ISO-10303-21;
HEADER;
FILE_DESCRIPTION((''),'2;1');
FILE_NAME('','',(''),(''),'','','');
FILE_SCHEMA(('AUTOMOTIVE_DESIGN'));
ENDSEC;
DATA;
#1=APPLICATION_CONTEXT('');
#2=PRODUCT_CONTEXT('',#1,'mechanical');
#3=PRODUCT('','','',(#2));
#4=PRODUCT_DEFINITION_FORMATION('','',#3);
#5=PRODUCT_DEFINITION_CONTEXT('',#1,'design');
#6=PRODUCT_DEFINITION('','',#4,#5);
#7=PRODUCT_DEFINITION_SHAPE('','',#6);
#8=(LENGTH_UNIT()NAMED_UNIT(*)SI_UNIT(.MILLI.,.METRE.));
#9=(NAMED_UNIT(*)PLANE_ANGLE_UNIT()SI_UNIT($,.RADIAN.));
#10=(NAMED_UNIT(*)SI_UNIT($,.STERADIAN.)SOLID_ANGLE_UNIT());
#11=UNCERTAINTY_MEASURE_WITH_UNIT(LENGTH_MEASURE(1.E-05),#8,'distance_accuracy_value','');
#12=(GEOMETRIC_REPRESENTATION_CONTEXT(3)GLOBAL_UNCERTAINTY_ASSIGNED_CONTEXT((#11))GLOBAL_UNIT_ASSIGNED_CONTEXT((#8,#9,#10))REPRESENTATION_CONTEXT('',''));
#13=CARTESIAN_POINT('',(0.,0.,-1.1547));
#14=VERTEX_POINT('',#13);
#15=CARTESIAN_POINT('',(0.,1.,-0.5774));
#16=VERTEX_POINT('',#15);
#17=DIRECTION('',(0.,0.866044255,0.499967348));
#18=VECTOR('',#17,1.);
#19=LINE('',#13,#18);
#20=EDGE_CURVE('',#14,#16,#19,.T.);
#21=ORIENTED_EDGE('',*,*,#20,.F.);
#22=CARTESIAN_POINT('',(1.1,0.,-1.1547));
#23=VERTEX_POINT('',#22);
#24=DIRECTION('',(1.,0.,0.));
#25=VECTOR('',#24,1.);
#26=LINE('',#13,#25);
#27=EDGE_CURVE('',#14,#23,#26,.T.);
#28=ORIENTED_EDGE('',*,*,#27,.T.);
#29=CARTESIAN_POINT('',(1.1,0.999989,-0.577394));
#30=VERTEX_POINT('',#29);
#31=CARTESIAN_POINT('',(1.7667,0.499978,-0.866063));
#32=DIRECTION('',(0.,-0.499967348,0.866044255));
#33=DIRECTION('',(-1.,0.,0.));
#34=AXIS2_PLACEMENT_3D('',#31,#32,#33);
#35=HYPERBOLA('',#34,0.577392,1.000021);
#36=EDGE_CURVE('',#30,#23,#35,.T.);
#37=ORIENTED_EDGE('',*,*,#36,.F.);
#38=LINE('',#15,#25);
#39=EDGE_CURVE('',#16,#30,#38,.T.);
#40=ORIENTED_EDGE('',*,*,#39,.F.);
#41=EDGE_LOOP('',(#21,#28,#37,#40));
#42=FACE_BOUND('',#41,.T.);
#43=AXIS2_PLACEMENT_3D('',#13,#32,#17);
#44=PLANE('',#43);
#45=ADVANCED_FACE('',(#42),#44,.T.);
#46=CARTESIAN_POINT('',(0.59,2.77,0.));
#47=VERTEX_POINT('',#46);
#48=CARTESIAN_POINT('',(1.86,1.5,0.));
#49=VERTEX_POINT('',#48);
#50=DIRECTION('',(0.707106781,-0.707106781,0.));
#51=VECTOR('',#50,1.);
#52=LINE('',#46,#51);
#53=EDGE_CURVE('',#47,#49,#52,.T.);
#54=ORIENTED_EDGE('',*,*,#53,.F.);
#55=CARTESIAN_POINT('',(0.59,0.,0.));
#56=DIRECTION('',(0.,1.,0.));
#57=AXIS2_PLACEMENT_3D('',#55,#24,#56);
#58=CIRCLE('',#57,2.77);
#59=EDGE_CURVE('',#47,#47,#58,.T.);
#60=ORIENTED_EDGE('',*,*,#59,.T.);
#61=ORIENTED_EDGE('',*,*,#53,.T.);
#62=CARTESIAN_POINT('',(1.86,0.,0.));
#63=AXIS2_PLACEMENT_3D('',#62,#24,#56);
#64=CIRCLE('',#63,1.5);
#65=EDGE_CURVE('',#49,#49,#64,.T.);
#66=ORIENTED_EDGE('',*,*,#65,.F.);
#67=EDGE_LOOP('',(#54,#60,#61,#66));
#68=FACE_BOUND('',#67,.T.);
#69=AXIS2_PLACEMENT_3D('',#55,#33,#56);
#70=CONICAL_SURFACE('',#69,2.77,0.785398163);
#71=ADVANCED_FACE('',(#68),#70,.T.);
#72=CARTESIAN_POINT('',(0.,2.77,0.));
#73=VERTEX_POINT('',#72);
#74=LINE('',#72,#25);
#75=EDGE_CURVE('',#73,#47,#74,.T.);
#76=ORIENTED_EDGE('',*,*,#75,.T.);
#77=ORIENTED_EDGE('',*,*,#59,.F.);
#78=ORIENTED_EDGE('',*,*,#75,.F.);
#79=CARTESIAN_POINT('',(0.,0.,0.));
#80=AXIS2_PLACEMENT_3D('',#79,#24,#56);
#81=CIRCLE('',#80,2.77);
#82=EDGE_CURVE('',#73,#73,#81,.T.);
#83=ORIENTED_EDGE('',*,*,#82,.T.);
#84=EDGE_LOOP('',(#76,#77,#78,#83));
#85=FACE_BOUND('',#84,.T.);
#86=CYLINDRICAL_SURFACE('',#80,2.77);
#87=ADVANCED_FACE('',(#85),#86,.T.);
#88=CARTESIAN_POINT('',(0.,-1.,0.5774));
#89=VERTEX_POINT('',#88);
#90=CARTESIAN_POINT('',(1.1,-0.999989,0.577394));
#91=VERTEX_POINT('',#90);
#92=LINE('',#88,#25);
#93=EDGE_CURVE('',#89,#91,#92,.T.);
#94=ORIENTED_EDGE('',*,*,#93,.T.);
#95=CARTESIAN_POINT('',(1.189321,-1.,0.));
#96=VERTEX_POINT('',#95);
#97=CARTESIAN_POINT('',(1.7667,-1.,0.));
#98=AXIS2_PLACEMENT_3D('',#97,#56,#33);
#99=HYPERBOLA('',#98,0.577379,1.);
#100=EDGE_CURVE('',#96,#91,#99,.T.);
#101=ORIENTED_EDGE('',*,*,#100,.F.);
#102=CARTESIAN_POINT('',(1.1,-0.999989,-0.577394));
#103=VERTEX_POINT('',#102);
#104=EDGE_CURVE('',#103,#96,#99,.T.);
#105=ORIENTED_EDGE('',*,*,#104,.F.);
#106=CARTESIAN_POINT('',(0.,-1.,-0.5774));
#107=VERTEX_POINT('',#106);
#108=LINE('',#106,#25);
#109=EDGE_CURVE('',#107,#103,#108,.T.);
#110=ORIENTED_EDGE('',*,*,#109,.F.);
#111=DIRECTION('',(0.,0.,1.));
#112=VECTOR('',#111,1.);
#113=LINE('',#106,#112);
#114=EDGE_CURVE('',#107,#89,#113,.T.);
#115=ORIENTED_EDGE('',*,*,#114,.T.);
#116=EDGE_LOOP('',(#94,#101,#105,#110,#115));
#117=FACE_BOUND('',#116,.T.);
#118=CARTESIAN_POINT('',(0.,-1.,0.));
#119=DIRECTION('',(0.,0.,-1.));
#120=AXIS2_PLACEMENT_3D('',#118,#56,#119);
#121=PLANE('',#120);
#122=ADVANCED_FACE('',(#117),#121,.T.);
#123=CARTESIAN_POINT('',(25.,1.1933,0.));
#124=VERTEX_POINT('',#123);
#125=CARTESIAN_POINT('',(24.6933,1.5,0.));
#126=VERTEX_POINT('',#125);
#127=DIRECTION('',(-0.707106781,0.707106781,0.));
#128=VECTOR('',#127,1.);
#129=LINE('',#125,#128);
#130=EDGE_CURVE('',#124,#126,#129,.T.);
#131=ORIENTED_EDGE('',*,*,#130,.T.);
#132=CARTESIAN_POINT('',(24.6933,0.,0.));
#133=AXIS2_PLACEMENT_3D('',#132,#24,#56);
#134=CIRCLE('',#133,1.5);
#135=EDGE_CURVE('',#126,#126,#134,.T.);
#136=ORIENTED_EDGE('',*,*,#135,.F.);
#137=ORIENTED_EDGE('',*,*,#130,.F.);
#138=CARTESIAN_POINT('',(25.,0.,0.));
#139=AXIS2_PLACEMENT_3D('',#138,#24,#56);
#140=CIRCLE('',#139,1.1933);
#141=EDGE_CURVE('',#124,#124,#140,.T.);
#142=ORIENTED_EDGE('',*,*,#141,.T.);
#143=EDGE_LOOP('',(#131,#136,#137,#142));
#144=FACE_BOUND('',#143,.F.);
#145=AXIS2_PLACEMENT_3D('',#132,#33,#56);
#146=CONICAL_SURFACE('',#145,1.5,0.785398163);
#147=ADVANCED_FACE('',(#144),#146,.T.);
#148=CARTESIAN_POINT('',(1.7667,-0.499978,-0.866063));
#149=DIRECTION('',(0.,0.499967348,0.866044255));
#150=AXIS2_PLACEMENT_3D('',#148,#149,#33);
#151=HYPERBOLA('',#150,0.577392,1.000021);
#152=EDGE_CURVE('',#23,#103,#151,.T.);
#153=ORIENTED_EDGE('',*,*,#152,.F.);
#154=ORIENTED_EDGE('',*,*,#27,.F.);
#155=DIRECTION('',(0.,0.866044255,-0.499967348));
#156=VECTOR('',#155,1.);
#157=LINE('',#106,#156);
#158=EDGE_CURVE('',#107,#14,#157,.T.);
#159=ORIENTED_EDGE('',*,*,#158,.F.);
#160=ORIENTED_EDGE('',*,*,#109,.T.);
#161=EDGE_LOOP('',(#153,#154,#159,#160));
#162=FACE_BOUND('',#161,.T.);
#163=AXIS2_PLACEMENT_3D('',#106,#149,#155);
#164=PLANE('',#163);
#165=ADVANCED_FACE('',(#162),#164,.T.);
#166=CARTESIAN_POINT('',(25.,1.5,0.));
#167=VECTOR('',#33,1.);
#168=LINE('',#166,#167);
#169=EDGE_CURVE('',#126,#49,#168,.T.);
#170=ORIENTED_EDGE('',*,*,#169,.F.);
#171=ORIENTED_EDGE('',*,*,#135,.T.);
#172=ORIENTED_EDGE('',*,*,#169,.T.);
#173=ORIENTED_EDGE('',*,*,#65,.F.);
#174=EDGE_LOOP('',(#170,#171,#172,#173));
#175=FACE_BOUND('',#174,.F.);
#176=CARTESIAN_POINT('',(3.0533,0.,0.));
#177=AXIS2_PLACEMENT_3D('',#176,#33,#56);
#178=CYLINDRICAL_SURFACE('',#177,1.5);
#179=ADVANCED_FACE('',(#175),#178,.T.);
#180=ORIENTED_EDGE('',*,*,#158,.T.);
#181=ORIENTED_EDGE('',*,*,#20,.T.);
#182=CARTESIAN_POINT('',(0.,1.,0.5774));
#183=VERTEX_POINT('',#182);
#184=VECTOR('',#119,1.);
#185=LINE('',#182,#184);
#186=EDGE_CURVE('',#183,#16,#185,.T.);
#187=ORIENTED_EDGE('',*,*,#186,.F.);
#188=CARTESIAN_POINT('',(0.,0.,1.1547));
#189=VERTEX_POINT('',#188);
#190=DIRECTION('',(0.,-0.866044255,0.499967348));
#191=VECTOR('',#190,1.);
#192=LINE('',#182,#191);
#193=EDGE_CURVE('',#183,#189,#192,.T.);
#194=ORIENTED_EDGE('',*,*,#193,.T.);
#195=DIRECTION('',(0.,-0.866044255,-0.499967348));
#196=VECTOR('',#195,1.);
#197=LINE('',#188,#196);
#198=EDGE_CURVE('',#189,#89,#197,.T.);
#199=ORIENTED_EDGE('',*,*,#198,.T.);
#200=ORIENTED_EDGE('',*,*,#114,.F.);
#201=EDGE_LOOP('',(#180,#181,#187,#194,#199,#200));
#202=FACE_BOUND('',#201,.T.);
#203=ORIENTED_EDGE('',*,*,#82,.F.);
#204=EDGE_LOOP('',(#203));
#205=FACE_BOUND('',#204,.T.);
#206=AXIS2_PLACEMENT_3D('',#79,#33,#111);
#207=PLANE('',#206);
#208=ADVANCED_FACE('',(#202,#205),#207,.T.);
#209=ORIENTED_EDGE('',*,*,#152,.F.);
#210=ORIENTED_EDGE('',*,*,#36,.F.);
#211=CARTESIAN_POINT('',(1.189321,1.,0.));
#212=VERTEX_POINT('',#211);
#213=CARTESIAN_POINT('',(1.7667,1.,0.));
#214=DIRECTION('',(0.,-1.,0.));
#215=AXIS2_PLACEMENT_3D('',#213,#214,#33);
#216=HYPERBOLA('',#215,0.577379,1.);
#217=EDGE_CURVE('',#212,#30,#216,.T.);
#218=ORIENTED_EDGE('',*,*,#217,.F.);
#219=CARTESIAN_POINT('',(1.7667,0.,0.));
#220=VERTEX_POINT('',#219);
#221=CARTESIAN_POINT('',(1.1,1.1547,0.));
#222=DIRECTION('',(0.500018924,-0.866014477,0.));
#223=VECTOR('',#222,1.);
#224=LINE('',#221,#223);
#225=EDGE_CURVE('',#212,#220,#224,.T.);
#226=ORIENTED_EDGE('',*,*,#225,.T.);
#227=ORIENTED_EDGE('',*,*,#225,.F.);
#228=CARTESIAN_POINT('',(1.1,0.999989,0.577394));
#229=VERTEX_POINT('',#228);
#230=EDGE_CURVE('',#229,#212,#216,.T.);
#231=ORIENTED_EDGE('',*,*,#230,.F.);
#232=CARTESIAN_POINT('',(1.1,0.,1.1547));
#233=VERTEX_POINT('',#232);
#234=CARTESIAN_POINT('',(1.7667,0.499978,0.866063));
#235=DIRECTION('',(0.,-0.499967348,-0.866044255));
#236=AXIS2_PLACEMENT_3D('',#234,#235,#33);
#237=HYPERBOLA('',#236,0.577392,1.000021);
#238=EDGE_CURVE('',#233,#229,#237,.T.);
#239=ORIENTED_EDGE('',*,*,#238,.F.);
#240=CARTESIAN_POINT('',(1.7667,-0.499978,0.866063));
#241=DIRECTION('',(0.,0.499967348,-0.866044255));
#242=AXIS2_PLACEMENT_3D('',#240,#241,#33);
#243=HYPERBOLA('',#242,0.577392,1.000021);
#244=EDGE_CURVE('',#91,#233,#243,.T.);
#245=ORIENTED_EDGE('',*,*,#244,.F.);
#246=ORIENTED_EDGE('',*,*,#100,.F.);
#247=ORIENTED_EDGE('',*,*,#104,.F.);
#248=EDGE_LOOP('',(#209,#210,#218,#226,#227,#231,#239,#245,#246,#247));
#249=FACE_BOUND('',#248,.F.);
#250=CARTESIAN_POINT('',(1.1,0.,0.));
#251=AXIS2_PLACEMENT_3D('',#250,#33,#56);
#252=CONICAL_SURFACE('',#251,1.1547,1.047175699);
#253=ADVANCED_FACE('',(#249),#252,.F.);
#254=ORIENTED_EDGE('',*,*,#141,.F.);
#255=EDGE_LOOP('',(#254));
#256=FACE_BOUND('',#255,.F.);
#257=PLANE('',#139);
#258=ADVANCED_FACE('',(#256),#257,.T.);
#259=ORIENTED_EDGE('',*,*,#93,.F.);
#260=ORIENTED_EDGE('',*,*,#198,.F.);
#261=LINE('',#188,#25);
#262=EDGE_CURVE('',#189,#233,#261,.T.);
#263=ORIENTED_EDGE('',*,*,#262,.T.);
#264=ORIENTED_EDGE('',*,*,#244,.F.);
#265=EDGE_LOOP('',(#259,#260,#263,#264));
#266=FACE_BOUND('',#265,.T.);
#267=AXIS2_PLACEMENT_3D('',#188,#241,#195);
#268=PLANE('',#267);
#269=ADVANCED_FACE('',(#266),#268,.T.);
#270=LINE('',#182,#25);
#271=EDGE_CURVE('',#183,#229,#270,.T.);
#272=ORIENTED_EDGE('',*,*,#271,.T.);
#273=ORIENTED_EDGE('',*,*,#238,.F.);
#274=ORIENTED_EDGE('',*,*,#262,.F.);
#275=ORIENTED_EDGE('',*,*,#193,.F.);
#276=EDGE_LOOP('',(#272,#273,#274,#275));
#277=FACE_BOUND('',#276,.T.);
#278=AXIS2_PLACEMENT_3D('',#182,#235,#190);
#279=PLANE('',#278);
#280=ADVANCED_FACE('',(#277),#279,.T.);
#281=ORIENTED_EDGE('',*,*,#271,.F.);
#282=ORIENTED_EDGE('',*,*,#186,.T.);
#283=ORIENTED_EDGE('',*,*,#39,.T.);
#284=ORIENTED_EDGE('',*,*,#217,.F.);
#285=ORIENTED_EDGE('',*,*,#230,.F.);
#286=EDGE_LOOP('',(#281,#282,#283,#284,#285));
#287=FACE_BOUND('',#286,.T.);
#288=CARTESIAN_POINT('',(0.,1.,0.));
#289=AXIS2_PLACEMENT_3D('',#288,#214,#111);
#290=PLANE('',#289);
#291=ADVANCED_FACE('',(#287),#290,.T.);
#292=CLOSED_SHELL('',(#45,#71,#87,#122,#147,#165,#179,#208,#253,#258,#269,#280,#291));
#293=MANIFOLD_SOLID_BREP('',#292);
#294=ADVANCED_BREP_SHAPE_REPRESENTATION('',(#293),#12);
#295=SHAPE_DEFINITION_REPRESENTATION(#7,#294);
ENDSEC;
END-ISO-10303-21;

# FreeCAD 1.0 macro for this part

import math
import FreeCAD as App
import Part
import Sketcher

V = App.Vector
Q = App.Units.Quantity


def edges_at(feature, points):
    """Names of the edges that pass closest to the given points."""
    edges = feature.Shape.Edges
    near = lambda p: min(range(len(edges)), key=lambda i: edges[i].distToShape(Part.Vertex(*p))[0])
    return sorted({f"Edge{near(p) + 1}" for p in points})

doc = App.newDocument("Part")
params = doc.addObject("Spreadsheet::Sheet", "Params")
for row, (alias, value) in enumerate([
    ("sketch1_width", "1.1 mm"),
    ("sketch1_height", "1.5 mm"),
    ("sketch1_width2", "0.59 mm"),
    ("revolution_angle", "360 deg"),
    ("chamfer_size", "0.3067 mm"),
    ("chamfer_size2", "0.3067 mm"),
], start=1):
    params.set(f"A{row}", alias)
    params.set(f"B{row}", "=" + value)
    params.setAlias(f"B{row}", alias)

body = doc.addObject("PartDesign::Body", "Body")

sketch1 = doc.addObject("Sketcher::SketchObject", "Sketch")
body.addObject(sketch1)
sketch1.AttachmentSupport = (doc.XY_Plane, [""])
sketch1.MapMode = "FlatFace"
sketch1.addGeometry([
    Part.LineSegment(V(1.8, 0, 0), V(25, 0, 0)),
    Part.LineSegment(V(25, 0, 0), V(25, 1.5, 0)),
    Part.LineSegment(V(25, 1.5, 0), V(1.9, 1.5, 0)),
    Part.LineSegment(V(1.9, 1.5, 0), V(0.6, 2.8, 0)),
    Part.LineSegment(V(0.6, 2.8, 0), V(0, 2.8, 0)),
    Part.LineSegment(V(0, 2.8, 0), V(0, 1.2, 0)),
    Part.LineSegment(V(0, 1.2, 0), V(1.1, 1.2, 0)),
    Part.LineSegment(V(1.1, 1.2, 0), V(1.8, 0, 0)),
], False)
sketch1.addConstraint([
    Sketcher.Constraint("Coincident", 0, 2, 1, 1),
    Sketcher.Constraint("Coincident", 1, 2, 2, 1),
    Sketcher.Constraint("Coincident", 2, 2, 3, 1),
    Sketcher.Constraint("Coincident", 3, 2, 4, 1),
    Sketcher.Constraint("Coincident", 4, 2, 5, 1),
    Sketcher.Constraint("Coincident", 5, 2, 6, 1),
    Sketcher.Constraint("Coincident", 6, 2, 7, 1),
    Sketcher.Constraint("Coincident", 7, 2, 0, 1),
    Sketcher.Constraint("Horizontal", 0),
    Sketcher.Constraint("Vertical", 1),
    Sketcher.Constraint("Horizontal", 2),
    Sketcher.Constraint("Horizontal", 4),
    Sketcher.Constraint("Vertical", 5),
    Sketcher.Constraint("Horizontal", 6),
    Sketcher.Constraint("PointOnObject", 0, 2, -1),
    Sketcher.Constraint("PointOnObject", 4, 2, -2),
    Sketcher.Constraint("DistanceX", 6, 1, 6, 2, 1.1),
    Sketcher.Constraint("DistanceX", -1, 1, 0, 2, 25.0),
    Sketcher.Constraint("DistanceX", -1, 1, 2, 2, 1.86),
    Sketcher.Constraint("Angle", 3, Q("135 deg")),
    Sketcher.Constraint("DistanceY", 1, 1, 1, 2, 1.5),
    Sketcher.Constraint("DistanceX", 4, 2, 4, 1, 0.59),
    Sketcher.Constraint("DistanceX", 0, 1, 0, 2, 23.2333),
    Sketcher.Constraint("DistanceY", 5, 2, 5, 1, 1.6153),
])
sketch1.setExpression("Constraints[16]", "Params.sketch1_width")
sketch1.setExpression("Constraints[20]", "Params.sketch1_height")
sketch1.setExpression("Constraints[21]", "Params.sketch1_width2")
revolution = doc.addObject("PartDesign::Revolution", "Revolution")
body.addObject(revolution)
revolution.Profile = sketch1
revolution.ReferenceAxis = (sketch1, ["H_Axis"])
revolution.setExpression("Angle", "Params.revolution_angle")

sketch2 = doc.addObject("Sketcher::SketchObject", "Sketch001")
body.addObject(sketch2)
sketch2.AttachmentSupport = (doc.YZ_Plane, [""])
sketch2.MapMode = "FlatFace"
sketch2.addGeometry([
    Part.LineSegment(V(1, 0.6, 0), V(0, 1.2, 0)),
    Part.ArcOfCircle(Part.Circle(V(0, 0, 0), V(0, 0, 1), 1.2), math.radians(30), math.radians(90)),
    Part.ArcOfCircle(Part.Circle(V(0, 0, 0), V(0, 0, 1), 1.2), math.radians(90), math.radians(150)),
    Part.LineSegment(V(0, 1.2, 0), V(-1, 0.6, 0)),
    Part.ArcOfCircle(Part.Circle(V(0, 0, 0), V(0, 0, 1), 1.2), math.radians(-30), math.radians(30)),
    Part.LineSegment(V(1, 0.6, 0), V(1, -0.6, 0)),
    Part.LineSegment(V(-1, 0.6, 0), V(-1, -0.6, 0)),
    Part.ArcOfCircle(Part.Circle(V(0, 0, 0), V(0, 0, 1), 1.2), math.radians(150), math.radians(210)),
    Part.LineSegment(V(-1, -0.6, 0), V(0, -1.2, 0)),
    Part.ArcOfCircle(Part.Circle(V(0, 0, 0), V(0, 0, 1), 1.2), math.radians(-150), math.radians(-90)),
    Part.ArcOfCircle(Part.Circle(V(0, 0, 0), V(0, 0, 1), 1.2), math.radians(-90), math.radians(-30)),
    Part.LineSegment(V(0, -1.2, 0), V(1, -0.6, 0)),
], False)
sketch2.addConstraint([
    Sketcher.Constraint("Coincident", 0, 1, 1, 1),
    Sketcher.Constraint("Coincident", 1, 2, 0, 2),
    Sketcher.Constraint("Coincident", 2, 1, 3, 1),
    Sketcher.Constraint("Coincident", 3, 2, 2, 2),
    Sketcher.Constraint("Coincident", 4, 1, 5, 2),
    Sketcher.Constraint("Coincident", 5, 1, 4, 2),
    Sketcher.Constraint("Coincident", 6, 1, 7, 1),
    Sketcher.Constraint("Coincident", 7, 2, 6, 2),
    Sketcher.Constraint("Coincident", 8, 1, 9, 1),
    Sketcher.Constraint("Coincident", 9, 2, 8, 2),
    Sketcher.Constraint("Coincident", 10, 1, 11, 1),
    Sketcher.Constraint("Coincident", 11, 2, 10, 2),
    Sketcher.Constraint("Vertical", 5),
    Sketcher.Constraint("Vertical", 6),
    Sketcher.Constraint("Coincident", 1, 3, -1, 1),
    Sketcher.Constraint("Coincident", 2, 3, -1, 1),
    Sketcher.Constraint("Coincident", 4, 3, -1, 1),
    Sketcher.Constraint("Coincident", 7, 3, -1, 1),
    Sketcher.Constraint("Coincident", 9, 3, -1, 1),
    Sketcher.Constraint("Coincident", 10, 3, -1, 1),
    Sketcher.Constraint("Coincident", 2, 1, 1, 2),
    Sketcher.Constraint("Coincident", 5, 1, 0, 1),
    Sketcher.Constraint("Coincident", 6, 1, 3, 2),
    Sketcher.Constraint("Coincident", 8, 1, 7, 2),
    Sketcher.Constraint("Coincident", 10, 1, 9, 2),
    Sketcher.Constraint("PointOnObject", 1, 2, -2),
    Sketcher.Constraint("PointOnObject", 9, 2, -2),
    Sketcher.Constraint("Parallel", 0, 8),
    Sketcher.Constraint("Parallel", 3, 11),
    Sketcher.Constraint("DistanceX", -1, 1, 0, 1, 1.0),
    Sketcher.Constraint("Radius", 1, 1.1547),
])
pad1 = doc.addObject("PartDesign::Pad", "Pad")
body.addObject(pad1)
pad1.Profile = sketch2
pad1.Type = "UpToFirst"
doc.recompute()

chamfer = doc.addObject("PartDesign::Chamfer", "Chamfer")
body.addObject(chamfer)
chamfer.Base = (pad1, edges_at(pad1, [(25, -1.5, 0)]))
chamfer.ChamferType = "Two distances"
chamfer.setExpression("Size", "Params.chamfer_size")
chamfer.setExpression("Size2", "Params.chamfer_size2")

doc.recompute()
